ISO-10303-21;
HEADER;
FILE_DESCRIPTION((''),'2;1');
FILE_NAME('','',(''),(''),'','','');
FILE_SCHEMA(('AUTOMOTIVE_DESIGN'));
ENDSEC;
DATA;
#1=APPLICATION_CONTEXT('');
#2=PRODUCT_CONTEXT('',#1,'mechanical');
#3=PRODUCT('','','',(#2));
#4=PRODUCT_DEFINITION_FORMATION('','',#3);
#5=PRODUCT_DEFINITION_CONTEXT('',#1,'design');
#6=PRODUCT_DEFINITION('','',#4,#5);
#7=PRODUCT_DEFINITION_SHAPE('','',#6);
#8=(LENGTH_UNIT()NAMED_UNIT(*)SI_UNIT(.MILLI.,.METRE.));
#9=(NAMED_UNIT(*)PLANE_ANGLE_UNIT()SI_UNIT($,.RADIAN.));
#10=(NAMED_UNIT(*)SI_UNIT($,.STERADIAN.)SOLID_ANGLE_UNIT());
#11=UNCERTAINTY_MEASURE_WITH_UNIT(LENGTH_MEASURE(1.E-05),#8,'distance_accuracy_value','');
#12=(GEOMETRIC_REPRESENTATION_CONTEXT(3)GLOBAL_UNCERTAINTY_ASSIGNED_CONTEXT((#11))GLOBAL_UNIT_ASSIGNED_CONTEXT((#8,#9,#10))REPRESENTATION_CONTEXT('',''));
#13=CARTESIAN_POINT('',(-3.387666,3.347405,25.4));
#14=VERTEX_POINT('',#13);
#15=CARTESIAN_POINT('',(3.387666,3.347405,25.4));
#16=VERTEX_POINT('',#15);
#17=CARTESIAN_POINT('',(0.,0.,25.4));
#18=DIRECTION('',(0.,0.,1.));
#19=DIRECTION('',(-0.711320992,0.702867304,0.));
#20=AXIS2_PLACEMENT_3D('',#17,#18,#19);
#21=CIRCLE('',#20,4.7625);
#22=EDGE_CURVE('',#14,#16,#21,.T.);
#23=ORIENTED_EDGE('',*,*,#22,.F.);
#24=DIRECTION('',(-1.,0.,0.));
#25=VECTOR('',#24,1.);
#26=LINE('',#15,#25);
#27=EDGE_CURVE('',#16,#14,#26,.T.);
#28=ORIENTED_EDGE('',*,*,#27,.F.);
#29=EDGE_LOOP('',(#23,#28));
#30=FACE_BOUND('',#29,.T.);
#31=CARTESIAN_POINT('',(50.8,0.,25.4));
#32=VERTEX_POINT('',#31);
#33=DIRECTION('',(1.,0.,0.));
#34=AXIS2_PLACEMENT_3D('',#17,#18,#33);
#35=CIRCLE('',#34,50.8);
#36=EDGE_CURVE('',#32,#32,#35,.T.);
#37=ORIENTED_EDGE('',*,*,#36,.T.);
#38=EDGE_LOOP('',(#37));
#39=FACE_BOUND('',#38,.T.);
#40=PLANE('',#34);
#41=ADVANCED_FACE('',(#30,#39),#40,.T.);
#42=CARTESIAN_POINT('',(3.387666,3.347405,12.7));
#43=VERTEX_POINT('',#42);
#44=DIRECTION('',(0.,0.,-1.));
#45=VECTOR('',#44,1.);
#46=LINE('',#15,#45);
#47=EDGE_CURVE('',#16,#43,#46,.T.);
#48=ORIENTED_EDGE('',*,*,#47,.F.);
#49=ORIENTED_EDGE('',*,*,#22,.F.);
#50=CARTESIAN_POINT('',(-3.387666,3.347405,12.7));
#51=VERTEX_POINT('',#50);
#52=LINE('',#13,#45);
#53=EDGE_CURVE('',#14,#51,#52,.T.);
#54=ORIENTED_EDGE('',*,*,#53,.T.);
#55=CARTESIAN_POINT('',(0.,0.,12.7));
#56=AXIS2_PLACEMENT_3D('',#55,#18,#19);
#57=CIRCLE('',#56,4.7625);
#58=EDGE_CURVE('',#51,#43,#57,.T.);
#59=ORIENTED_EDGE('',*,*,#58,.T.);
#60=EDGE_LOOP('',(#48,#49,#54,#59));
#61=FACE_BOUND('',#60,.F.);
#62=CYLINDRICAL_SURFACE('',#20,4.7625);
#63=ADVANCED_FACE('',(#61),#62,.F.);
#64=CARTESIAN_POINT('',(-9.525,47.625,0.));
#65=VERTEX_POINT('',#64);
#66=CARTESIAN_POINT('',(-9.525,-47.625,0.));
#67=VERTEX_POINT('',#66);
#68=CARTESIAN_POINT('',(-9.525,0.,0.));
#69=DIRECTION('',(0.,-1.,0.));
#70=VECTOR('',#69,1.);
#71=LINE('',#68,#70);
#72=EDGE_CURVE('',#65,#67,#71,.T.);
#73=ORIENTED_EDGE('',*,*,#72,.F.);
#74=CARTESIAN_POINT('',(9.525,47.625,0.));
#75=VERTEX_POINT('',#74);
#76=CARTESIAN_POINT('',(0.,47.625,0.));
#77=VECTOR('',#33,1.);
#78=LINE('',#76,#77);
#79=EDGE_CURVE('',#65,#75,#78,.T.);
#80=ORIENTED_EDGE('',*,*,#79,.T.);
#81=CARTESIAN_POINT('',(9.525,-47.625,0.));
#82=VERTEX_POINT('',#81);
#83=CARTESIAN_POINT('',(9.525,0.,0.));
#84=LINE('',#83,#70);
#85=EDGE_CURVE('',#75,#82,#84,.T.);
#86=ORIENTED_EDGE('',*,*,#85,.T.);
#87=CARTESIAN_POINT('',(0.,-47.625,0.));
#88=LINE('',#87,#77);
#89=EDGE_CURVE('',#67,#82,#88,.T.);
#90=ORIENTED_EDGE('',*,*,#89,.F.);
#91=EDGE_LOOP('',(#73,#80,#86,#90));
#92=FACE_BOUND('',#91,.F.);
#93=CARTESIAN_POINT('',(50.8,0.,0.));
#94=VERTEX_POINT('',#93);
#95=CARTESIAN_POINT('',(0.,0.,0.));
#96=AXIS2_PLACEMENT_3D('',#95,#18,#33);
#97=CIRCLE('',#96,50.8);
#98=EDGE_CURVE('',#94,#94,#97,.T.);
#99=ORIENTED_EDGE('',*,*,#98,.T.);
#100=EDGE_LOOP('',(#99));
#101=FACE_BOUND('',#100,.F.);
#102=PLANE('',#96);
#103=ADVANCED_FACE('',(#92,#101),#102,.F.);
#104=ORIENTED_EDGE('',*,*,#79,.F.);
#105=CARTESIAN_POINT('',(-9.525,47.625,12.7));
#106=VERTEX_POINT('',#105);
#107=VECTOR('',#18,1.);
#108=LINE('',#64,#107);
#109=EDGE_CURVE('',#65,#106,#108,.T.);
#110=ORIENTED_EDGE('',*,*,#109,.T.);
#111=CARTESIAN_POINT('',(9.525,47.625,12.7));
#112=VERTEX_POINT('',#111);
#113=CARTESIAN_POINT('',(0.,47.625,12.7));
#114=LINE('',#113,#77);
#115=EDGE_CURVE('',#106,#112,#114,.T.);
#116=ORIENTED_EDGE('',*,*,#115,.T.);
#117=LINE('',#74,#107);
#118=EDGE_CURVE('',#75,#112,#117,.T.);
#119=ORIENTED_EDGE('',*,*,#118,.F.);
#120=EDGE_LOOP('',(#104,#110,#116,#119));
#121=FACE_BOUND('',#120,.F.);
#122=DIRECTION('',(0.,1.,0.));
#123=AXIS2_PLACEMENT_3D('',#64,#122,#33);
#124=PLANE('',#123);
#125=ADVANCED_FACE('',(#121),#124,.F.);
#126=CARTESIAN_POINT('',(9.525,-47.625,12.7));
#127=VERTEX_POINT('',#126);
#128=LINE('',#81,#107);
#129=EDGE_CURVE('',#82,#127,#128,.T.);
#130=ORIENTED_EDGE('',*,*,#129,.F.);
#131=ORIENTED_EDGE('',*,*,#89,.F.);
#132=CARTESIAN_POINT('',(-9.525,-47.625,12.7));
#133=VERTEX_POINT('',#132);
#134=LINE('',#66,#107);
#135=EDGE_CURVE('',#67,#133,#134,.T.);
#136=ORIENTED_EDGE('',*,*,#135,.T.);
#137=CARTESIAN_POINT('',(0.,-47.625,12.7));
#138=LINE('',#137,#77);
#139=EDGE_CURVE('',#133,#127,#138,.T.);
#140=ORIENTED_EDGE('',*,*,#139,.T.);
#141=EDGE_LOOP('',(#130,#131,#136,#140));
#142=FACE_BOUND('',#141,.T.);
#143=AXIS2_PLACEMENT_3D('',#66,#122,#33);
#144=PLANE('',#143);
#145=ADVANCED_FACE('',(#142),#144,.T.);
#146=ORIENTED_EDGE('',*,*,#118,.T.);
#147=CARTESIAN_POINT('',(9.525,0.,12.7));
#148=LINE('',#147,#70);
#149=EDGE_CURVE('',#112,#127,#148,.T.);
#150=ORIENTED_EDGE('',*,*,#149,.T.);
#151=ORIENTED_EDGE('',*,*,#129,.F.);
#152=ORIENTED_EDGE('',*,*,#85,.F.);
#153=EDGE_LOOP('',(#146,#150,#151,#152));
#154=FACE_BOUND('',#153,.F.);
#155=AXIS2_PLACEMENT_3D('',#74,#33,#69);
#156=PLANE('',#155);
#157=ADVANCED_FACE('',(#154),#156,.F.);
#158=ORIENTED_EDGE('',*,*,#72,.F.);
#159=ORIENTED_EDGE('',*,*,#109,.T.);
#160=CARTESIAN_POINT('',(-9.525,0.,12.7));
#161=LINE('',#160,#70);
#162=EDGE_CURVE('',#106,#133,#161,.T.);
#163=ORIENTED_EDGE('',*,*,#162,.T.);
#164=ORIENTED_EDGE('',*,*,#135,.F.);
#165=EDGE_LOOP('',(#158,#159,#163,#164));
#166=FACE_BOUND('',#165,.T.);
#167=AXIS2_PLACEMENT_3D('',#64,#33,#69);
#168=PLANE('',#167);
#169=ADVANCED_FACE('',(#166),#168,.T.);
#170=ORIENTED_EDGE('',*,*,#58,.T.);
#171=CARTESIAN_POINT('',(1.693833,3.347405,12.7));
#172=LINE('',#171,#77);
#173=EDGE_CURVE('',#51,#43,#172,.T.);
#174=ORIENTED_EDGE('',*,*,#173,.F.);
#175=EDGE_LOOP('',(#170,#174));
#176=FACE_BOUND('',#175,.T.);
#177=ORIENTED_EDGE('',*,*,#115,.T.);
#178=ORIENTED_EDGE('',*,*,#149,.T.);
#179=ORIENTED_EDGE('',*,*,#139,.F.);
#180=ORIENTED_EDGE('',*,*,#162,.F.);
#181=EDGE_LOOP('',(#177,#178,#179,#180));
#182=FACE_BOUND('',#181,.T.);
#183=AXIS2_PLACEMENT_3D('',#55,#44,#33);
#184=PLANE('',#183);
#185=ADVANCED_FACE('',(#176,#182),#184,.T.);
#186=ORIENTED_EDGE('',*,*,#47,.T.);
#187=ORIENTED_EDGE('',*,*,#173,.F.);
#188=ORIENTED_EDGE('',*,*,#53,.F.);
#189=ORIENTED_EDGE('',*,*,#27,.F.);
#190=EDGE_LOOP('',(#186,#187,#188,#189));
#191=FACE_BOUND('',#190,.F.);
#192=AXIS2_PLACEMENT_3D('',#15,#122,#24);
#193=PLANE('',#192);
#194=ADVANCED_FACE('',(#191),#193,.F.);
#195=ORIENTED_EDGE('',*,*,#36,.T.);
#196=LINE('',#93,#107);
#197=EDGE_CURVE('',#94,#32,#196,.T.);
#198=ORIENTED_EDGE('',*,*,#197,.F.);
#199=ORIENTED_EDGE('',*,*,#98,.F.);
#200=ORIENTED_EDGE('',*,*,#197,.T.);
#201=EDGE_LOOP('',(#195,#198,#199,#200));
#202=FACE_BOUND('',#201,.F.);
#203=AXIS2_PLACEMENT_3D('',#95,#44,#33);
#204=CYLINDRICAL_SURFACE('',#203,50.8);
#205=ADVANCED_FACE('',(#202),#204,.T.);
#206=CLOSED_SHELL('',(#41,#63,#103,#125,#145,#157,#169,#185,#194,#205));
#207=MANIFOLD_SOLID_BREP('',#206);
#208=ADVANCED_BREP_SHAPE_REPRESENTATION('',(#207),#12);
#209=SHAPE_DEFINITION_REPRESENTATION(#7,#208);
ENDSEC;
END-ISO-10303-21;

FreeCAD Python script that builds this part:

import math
import FreeCAD as App
import Part
import Sketcher
from FreeCAD import Vector
Q = App.Units.Quantity


def add_polygon(sketch, points):
    """Adds a closed chain of lines whose ends are joined by coincident constraints."""
    first, n = sketch.GeometryCount, len(points)
    for a, b in zip(points, points[1:] + points[:1]):
        sketch.addGeometry(Part.LineSegment(App.Vector(*a, 0), App.Vector(*b, 0)), False)
    for i in range(n):
        sketch.addConstraint(Sketcher.Constraint("Coincident", first + i, 2, first + (i + 1) % n, 1))

doc = App.newDocument("Part")
body = doc.addObject("PartDesign::Body", "Body")

sketch1 = doc.addObject("Sketcher::SketchObject", "Sketch")
body.addObject(sketch1)
sketch1.AttachmentSupport = (doc.XY_Plane, [""])
sketch1.MapMode = "FlatFace"
sketch1.addGeometry(Part.Circle(Vector(0, 0, 0), Vector(0, 0, 1), 51), False)
sketch1.addConstraint([
    Sketcher.Constraint("Coincident", 0, 3, -1, 1),
    Sketcher.Constraint("Diameter", 0, Q("4 in")),
])
pad1 = doc.addObject("PartDesign::Pad", "Pad")
body.addObject(pad1)
pad1.Profile = sketch1
pad1.Length = Q("1 in")

sketch2 = doc.addObject("Sketcher::SketchObject", "Sketch001")
body.addObject(sketch2)
sketch2.AttachmentSupport = (doc.XY_Plane, [""])
sketch2.MapMode = "FlatFace"
add_polygon(sketch2, [(-10, -48), (-10, 48), (10, 48), (10, -48)])
sketch2.addConstraint([
    Sketcher.Constraint("Vertical", 0),
    Sketcher.Constraint("Horizontal", 1),
    Sketcher.Constraint("Vertical", 2),
    Sketcher.Constraint("Horizontal", 3),
    Sketcher.Constraint("Symmetric", 0, 2, 2, 2, -1, 1),
    Sketcher.Constraint("DistanceX", 1, 1, 1, 2, Q("0.75 in")),
    Sketcher.Constraint("DistanceY", 0, 1, 0, 2, Q("3.75 in")),
])
pocket1 = doc.addObject("PartDesign::Pocket", "Pocket")
body.addObject(pocket1)
pocket1.Profile = sketch2
pocket1.Length = Q("0.5 in")
pocket1.Reversed = True

sketch3 = doc.addObject("Sketcher::SketchObject", "Sketch002")
body.addObject(sketch3)
sketch3.AttachmentSupport = (doc.XY_Plane, [""])
sketch3.MapMode = "FlatFace"
sketch3.AttachmentOffset = App.Placement(Vector(0, 0, 1 * 25.4), App.Rotation())
sketch3.addGeometry([
    Part.LineSegment(Vector(3.4, 3.3, 0), Vector(-3.4, 3.3, 0)),
    Part.ArcOfCircle(Part.Circle(Vector(0, 0, 0), Vector(0, 0, 1), 4.8), math.radians(135), math.radians(405)),
], False)
sketch3.addConstraint([
    Sketcher.Constraint("Coincident", 0, 1, 1, 2),
    Sketcher.Constraint("Coincident", 1, 1, 0, 2),
    Sketcher.Constraint("Horizontal", 0),
    Sketcher.Constraint("Coincident", 1, 3, -1, 1),
    Sketcher.Constraint("Radius", 1, Q("0.1875 in")),
    Sketcher.Constraint("DistanceX", 0, 2, 0, 1, Q("6.775332 mm")),
])
pocket2 = doc.addObject("PartDesign::Pocket", "Pocket001")
body.addObject(pocket2)
pocket2.Profile = sketch3
pocket2.Length = Q("1 in")

doc.recompute()
